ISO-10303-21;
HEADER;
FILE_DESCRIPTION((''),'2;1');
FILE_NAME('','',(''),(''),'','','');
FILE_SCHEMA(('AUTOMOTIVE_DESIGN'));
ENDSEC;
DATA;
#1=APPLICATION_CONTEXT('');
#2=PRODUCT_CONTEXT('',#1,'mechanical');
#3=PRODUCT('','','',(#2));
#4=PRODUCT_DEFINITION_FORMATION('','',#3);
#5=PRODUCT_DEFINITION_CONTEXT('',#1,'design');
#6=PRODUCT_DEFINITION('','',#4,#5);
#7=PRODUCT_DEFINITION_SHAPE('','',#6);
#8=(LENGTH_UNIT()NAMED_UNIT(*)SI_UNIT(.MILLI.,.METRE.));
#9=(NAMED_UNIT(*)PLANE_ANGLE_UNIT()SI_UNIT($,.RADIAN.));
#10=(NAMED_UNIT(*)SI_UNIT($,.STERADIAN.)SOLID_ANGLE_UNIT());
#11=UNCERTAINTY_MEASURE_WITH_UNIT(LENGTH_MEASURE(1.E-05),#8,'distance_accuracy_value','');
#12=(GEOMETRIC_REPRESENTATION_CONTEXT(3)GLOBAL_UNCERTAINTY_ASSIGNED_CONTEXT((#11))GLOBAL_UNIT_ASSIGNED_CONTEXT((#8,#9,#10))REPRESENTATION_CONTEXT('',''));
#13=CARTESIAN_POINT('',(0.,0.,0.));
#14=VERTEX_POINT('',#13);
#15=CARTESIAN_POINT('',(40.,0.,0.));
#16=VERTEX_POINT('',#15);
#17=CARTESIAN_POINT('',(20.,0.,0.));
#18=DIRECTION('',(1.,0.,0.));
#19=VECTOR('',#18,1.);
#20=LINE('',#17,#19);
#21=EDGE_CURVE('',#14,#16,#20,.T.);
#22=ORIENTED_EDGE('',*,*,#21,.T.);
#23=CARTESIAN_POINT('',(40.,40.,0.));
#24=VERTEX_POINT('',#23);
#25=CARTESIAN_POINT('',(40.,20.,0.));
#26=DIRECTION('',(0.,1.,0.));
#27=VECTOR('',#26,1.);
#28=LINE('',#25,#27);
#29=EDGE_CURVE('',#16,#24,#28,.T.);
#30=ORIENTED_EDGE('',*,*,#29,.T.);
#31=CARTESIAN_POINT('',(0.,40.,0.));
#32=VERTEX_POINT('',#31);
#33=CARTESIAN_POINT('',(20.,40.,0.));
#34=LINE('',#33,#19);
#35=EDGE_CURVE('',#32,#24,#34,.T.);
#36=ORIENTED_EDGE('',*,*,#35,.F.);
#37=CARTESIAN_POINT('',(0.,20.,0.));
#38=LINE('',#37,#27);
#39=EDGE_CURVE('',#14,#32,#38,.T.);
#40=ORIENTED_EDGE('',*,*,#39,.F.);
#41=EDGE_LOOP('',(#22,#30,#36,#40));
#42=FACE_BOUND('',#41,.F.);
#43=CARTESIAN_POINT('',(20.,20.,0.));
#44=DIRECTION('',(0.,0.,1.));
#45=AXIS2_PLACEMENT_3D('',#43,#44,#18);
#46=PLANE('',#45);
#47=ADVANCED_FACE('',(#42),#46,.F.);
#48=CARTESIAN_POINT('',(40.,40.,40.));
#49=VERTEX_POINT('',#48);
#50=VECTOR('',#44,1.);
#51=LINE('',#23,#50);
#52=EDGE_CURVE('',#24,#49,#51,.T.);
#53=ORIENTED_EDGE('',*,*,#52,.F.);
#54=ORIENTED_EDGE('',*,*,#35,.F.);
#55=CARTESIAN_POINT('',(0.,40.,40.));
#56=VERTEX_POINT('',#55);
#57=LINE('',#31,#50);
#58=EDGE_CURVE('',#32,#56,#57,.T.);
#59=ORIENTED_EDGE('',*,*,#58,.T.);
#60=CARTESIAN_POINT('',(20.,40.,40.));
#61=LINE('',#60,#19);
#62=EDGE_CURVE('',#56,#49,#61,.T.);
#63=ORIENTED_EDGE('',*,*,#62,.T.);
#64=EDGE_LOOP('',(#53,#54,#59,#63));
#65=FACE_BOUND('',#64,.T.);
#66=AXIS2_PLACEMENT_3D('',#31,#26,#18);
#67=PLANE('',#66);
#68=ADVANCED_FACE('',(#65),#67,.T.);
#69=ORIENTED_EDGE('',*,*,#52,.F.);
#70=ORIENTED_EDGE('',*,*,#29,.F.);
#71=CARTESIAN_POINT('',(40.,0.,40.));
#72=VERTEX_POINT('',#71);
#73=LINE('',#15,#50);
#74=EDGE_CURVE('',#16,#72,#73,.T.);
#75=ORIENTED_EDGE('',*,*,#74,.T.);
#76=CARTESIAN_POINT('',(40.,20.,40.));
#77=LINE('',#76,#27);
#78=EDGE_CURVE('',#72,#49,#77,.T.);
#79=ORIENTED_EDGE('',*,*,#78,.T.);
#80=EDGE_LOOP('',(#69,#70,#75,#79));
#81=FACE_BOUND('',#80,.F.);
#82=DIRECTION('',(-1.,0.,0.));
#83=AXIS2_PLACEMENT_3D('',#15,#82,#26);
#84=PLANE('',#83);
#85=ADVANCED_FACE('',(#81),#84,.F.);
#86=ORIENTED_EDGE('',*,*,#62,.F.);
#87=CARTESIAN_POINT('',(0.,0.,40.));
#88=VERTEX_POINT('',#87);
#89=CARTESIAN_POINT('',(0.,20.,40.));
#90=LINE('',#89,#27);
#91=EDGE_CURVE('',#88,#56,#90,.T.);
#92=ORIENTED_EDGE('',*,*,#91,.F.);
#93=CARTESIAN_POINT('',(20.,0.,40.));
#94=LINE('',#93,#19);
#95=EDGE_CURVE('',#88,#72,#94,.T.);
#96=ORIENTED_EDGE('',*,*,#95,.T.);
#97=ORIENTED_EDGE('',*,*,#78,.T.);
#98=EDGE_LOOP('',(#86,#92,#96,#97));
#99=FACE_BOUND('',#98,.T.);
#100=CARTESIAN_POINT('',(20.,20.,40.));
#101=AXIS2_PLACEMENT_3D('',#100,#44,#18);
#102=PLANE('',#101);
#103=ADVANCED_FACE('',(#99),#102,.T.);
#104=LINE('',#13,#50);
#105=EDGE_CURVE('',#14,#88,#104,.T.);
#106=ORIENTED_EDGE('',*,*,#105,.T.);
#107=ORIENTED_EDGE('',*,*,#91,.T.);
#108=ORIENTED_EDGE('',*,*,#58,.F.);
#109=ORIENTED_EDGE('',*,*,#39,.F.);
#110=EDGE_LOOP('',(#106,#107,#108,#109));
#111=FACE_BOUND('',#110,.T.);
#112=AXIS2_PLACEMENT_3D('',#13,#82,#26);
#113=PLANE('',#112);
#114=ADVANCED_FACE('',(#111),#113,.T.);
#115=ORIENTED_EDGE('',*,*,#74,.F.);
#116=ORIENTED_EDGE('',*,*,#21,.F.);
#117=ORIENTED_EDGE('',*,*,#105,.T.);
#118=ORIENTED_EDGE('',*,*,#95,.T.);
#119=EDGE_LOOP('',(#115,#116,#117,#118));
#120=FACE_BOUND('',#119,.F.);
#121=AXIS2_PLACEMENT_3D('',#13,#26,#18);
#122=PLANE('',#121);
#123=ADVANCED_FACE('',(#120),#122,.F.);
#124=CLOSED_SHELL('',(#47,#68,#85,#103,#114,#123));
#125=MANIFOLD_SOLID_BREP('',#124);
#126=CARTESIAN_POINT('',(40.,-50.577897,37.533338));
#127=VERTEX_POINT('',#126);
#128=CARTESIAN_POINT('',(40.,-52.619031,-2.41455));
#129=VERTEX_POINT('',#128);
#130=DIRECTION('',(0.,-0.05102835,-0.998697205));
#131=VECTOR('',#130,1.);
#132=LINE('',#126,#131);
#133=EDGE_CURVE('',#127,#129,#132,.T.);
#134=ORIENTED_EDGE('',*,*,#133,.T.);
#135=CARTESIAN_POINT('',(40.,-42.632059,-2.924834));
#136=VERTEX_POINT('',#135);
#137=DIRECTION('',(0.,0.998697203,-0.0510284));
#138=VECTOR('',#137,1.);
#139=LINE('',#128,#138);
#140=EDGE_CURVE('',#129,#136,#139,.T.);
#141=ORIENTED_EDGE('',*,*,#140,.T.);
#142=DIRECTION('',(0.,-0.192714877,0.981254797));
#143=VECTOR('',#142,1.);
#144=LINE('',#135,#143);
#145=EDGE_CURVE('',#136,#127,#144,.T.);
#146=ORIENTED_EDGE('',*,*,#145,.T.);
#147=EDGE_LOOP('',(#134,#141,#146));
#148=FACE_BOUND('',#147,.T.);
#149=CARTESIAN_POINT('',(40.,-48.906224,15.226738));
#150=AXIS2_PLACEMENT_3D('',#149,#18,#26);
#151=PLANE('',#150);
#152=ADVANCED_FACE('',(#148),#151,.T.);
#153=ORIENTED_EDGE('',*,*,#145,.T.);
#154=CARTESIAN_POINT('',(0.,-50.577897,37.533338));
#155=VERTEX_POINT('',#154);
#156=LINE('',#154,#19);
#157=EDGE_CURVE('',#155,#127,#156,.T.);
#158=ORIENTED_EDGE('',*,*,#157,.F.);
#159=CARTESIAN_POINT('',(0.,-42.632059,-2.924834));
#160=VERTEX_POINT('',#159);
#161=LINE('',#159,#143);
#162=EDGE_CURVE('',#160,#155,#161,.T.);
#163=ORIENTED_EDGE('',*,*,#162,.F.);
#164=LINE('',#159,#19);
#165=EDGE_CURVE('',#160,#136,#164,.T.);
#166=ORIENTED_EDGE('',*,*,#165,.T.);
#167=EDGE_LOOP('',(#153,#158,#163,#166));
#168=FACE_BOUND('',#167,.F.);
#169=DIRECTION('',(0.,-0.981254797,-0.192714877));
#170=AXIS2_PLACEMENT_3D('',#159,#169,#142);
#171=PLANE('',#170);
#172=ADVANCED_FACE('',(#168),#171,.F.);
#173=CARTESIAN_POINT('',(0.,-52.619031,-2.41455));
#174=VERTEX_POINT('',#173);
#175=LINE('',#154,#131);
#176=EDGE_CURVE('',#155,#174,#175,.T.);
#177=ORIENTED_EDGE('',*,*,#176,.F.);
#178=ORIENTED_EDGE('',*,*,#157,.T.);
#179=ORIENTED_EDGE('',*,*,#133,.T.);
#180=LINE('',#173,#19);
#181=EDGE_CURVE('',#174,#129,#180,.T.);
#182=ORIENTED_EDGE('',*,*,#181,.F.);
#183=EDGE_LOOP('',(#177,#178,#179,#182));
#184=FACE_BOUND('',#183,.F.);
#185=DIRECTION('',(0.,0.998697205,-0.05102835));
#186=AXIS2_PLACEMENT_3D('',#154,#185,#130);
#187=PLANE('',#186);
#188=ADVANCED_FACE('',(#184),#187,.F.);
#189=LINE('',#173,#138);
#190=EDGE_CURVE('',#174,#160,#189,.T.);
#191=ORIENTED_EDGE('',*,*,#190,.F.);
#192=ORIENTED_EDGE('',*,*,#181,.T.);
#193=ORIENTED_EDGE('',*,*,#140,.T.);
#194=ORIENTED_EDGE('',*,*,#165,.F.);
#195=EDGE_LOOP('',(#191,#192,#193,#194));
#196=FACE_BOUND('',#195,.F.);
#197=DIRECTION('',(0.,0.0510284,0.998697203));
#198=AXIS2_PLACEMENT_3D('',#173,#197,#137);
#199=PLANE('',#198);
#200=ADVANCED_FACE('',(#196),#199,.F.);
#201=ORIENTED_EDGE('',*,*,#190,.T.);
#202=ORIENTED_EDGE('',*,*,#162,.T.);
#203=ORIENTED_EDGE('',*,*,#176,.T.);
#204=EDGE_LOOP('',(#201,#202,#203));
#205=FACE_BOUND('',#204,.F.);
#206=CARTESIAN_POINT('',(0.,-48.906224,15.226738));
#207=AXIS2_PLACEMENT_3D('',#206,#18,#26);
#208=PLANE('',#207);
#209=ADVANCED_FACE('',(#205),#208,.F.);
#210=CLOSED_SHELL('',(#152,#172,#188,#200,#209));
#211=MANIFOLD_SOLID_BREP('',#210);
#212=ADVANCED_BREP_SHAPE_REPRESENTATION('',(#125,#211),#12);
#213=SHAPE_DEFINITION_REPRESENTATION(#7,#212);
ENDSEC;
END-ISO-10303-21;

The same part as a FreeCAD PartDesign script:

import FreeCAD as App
import Part
import Sketcher
Q = App.Units.Quantity


def add_polygon(sketch, points):
    """Adds a closed chain of lines whose ends are joined by coincident constraints."""
    first, n = sketch.GeometryCount, len(points)
    for a, b in zip(points, points[1:] + points[:1]):
        sketch.addGeometry(Part.LineSegment(App.Vector(*a, 0), App.Vector(*b, 0)), False)
    for i in range(n):
        sketch.addConstraint(Sketcher.Constraint("Coincident", first + i, 2, first + (i + 1) % n, 1))

doc = App.newDocument("Part")
params = doc.addObject("Spreadsheet::Sheet", "Params")
for row, (alias, value) in enumerate([
    ("sketch1_width", "40 mm"),
    ("pad1_length", "40 mm"),
    ("sketch2_length", "40 mm"),
    ("sketch2_length2", "10 mm"),
    ("pad2_length", "40 mm"),
], start=1):
    params.set(f"A{row}", alias)
    params.set(f"B{row}", "=" + value)
    params.setAlias(f"B{row}", alias)

body = doc.addObject("PartDesign::Body", "Body")

# Sketch on XY plane
sketch1 = doc.addObject("Sketcher::SketchObject", "Sketch")
body.addObject(sketch1)
sketch1.AttachmentSupport = (doc.XY_Plane, [""])
sketch1.MapMode = "FlatFace"
add_polygon(sketch1, [(0, 40), (0, 0), (40, 0), (40, 40)])  # lines 0-3
sketch1.addConstraint(Sketcher.Constraint("Vertical", 0))
sketch1.addConstraint(Sketcher.Constraint("Horizontal", 1))
sketch1.addConstraint(Sketcher.Constraint("Vertical", 2))
sketch1.addConstraint(Sketcher.Constraint("Horizontal", 3))
sketch1.addConstraint(Sketcher.Constraint("Coincident", 0, 2, -1, 1))
sketch1.addConstraint(Sketcher.Constraint("Equal", 3, 0))
sketch1.addConstraint(Sketcher.Constraint("DistanceX", 1, 1, 1, 2, Q("40 mm")))
sketch1.setExpression("Constraints[10]", "Params.sketch1_width")
pad1 = doc.addObject("PartDesign::Pad", "Pad")
body.addObject(pad1)
pad1.Profile = sketch1
pad1.setExpression("Length", "Params.pad1_length")
body2 = doc.addObject("PartDesign::Body", "Body001")

# Sketch on YZ plane
sketch2 = doc.addObject("Sketcher::SketchObject", "Sketch001")
body2.addObject(sketch2)
sketch2.AttachmentSupport = (doc.getObject("YZ_Plane001"), [""])
sketch2.MapMode = "FlatFace"
add_polygon(sketch2, [(-43, -3), (-51, 38), (-53, -2)])  # lines 0-2
sketch2.addConstraint(Sketcher.Constraint("Perpendicular", 1, 2))
sketch2.addConstraint(Sketcher.Constraint("Distance", 1, Q("40 mm")))
sketch2.addConstraint(Sketcher.Constraint("Distance", 2, Q("10 mm")))
sketch2.addConstraint(Sketcher.Constraint("DistanceX", 1, 2, -1, 1, Q("52.619031 mm")))
sketch2.addConstraint(Sketcher.Constraint("DistanceY", 1, 2, -1, 1, Q("2.41455 mm")))
sketch2.addConstraint(Sketcher.Constraint("DistanceX", 2, 2, -1, 1, Q("42.632059 mm")))
sketch2.setExpression("Constraints[4]", "Params.sketch2_length")
sketch2.setExpression("Constraints[5]", "Params.sketch2_length2")
pad2 = doc.addObject("PartDesign::Pad", "Pad001")
body2.addObject(pad2)
pad2.Profile = sketch2
pad2.setExpression("Length", "Params.pad2_length")

doc.recompute()
